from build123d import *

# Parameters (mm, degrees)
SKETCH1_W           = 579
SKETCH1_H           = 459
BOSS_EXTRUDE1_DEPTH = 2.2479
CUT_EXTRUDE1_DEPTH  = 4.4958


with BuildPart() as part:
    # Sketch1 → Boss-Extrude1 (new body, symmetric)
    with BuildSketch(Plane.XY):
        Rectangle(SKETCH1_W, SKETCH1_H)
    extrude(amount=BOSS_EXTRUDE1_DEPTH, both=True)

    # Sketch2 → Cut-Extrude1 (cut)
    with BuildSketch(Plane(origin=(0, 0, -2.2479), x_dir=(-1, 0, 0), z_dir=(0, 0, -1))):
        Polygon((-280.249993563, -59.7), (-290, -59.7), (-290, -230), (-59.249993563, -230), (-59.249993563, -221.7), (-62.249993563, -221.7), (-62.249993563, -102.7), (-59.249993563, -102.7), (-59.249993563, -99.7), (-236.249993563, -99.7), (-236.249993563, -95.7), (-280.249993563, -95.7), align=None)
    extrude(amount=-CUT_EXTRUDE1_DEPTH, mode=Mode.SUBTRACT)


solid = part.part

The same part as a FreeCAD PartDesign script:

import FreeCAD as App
import Part
import Sketcher
from FreeCAD import Vector


def add_polygon(sketch, points):
    """Adds a closed chain of lines whose ends are joined by coincident constraints."""
    first, n = sketch.GeometryCount, len(points)
    for a, b in zip(points, points[1:] + points[:1]):
        sketch.addGeometry(Part.LineSegment(App.Vector(*a, 0), App.Vector(*b, 0)), False)
    for i in range(n):
        sketch.addConstraint(Sketcher.Constraint("Coincident", first + i, 2, first + (i + 1) % n, 1))

doc = App.newDocument("Part")
body = doc.addObject("PartDesign::Body", "Body")

sketch1 = body.newObject("Sketcher::SketchObject", "Sketch")
sketch1.AttachmentSupport = (doc.getObject("XY_Plane"), [""])
sketch1.MapMode = "FlatFace"
add_polygon(sketch1, [(-290, 230), (-290, -230), (290, -230), (290, 230)])
sketch1.addConstraint([
    Sketcher.Constraint("Vertical", 0),
    Sketcher.Constraint("Horizontal", 1),
    Sketcher.Constraint("Vertical", 2),
    Sketcher.Constraint("Horizontal", 3),
    Sketcher.Constraint("Symmetric", 0, 2, 2, 2, -1, 1),
    Sketcher.Constraint("DistanceX", 1, 1, 1, 2, 579.0),
    Sketcher.Constraint("DistanceY", 0, 2, 0, 1, 459.0),
])
pad1 = body.newObject("PartDesign::Pad", "Pad")
pad1.Profile = sketch1
pad1.Length = 4.4958
pad1.Midplane = True

sketch2 = body.newObject("Sketcher::SketchObject", "Sketch001")
sketch2.AttachmentSupport = (doc.getObject("XY_Plane"), [""])
sketch2.MapMode = "FlatFace"
sketch2.AttachmentOffset = App.Placement(Vector(0, 0, -2.2479), App.Rotation())
add_polygon(sketch2, [(280.2, -59.7), (290, -59.7), (290, -230), (59.2, -230), (59.2, -221.7), (62.2, -221.7), (62.2, -102.7), (59.2, -102.7), (59.2, -99.7), (236.2, -99.7), (236.2, -95.7), (280.2, -95.7)])
sketch2.addConstraint([
    Sketcher.Constraint("Horizontal", 0),
    Sketcher.Constraint("Vertical", 1),
    Sketcher.Constraint("Horizontal", 2),
    Sketcher.Constraint("Vertical", 3),
    Sketcher.Constraint("Horizontal", 4),
    Sketcher.Constraint("Vertical", 5),
    Sketcher.Constraint("Horizontal", 6),
    Sketcher.Constraint("Vertical", 7),
    Sketcher.Constraint("Horizontal", 8),
    Sketcher.Constraint("Vertical", 9),
    Sketcher.Constraint("Horizontal", 10),
    Sketcher.Constraint("Vertical", 11),
    Sketcher.Constraint("Vertical", 3, 2, 6, 2),
    Sketcher.Constraint("Equal", 6, 7),
    Sketcher.Constraint("DistanceX", 4, 1, 4, 2, 3.0),
    Sketcher.Constraint("DistanceX", 8, 1, 8, 2, 177.0),
    Sketcher.Constraint("DistanceX", 10, 1, 10, 2, 44.0),
    Sketcher.Constraint("DistanceY", 5, 1, 5, 2, 119.0),
    Sketcher.Constraint("DistanceY", 9, 1, 9, 2, 4.0),
    Sketcher.Constraint("DistanceY", 11, 1, 11, 2, 36.0),
    Sketcher.Constraint("DistanceY", 1, 2, 1, 1, 170.3),
    Sketcher.Constraint("DistanceX", -1, 1, 0, 2, 290.0),
    Sketcher.Constraint("DistanceY", 1, 2, -1, 1, 230.0),
    Sketcher.Constraint("DistanceX", 0, 1, 0, 2, 9.750006),
])
pocket1 = body.newObject("PartDesign::Pocket", "Pocket")
pocket1.Profile = sketch2
pocket1.Length = 4.4958
pocket1.Reversed = True

doc.recompute()
